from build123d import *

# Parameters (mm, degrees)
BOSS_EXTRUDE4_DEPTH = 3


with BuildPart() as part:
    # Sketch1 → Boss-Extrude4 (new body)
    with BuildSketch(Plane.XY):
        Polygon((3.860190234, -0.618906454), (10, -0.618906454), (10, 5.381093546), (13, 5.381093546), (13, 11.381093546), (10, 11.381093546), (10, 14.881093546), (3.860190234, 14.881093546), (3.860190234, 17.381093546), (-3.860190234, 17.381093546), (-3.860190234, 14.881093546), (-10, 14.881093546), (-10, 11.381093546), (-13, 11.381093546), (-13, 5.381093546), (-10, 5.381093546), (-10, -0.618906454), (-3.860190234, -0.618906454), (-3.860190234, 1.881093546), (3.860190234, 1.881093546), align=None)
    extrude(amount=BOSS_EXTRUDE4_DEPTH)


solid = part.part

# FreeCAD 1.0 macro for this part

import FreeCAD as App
import Part
import Sketcher

V = App.Vector


def add_polygon(sketch, points):
    """Adds a closed chain of lines whose ends are joined by coincident constraints."""
    first, n = sketch.GeometryCount, len(points)
    for a, b in zip(points, points[1:] + points[:1]):
        sketch.addGeometry(Part.LineSegment(App.Vector(*a, 0), App.Vector(*b, 0)), False)
    for i in range(n):
        sketch.addConstraint(Sketcher.Constraint("Coincident", first + i, 2, first + (i + 1) % n, 1))

doc = App.newDocument("Part")
body = doc.addObject("PartDesign::Body", "Body")

# Sketch on XY plane
sketch1 = body.newObject("Sketcher::SketchObject", "Sketch")
sketch1.AttachmentSupport = (doc.getObject("XY_Plane"), [""])
sketch1.MapMode = "FlatFace"
add_polygon(sketch1, [(3.9, -0.6), (10, -0.6), (10, 5.4), (13, 5.4), (13, 11.4), (10, 11.4), (10, 14.9), (3.9, 14.9), (3.9, 17.4), (-3.9, 17.4), (-3.9, 14.9), (-10, 14.9), (-10, 11.4), (-13, 11.4), (-13, 5.4), (-10, 5.4), (-10, -0.6), (-3.9, -0.6), (-3.9, 1.9), (3.9, 1.9)])  # lines 0-19
sketch1.addConstraint([
    Sketcher.Constraint("Horizontal", 0),
    Sketcher.Constraint("Vertical", 1),
    Sketcher.Constraint("Horizontal", 2),
    Sketcher.Constraint("Vertical", 3),
    Sketcher.Constraint("Horizontal", 4),
    Sketcher.Constraint("Vertical", 5),
    Sketcher.Constraint("Horizontal", 6),
    Sketcher.Constraint("Vertical", 7),
    Sketcher.Constraint("Horizontal", 8),
    Sketcher.Constraint("Vertical", 9),
    Sketcher.Constraint("Horizontal", 10),
    Sketcher.Constraint("Vertical", 11),
    Sketcher.Constraint("Horizontal", 12),
    Sketcher.Constraint("Vertical", 13),
    Sketcher.Constraint("Horizontal", 14),
    Sketcher.Constraint("Vertical", 15),
    Sketcher.Constraint("Horizontal", 16),
    Sketcher.Constraint("Vertical", 17),
    Sketcher.Constraint("Horizontal", 18),
    Sketcher.Constraint("Vertical", 19),
    Sketcher.Constraint("Symmetric", 6, 2, 9, 2, -2),
    Sketcher.Constraint("Symmetric", 4, 2, 11, 2, -2),
    Sketcher.Constraint("Symmetric", 2, 2, 13, 2, -2),
    Sketcher.Constraint("Symmetric", 0, 2, 15, 2, -2),
    Sketcher.Constraint("Vertical", 1, 2, 4, 2),
    Sketcher.Constraint("Vertical", 9, 2, 16, 2),
    Sketcher.Constraint("Vertical", 7, 2, 18, 2),
    Sketcher.Constraint("Equal", 1, 3),
    Sketcher.Constraint("Equal", 9, 17),
    Sketcher.Constraint("DistanceX", 2, 1, 2, 2, 3.0),
    Sketcher.Constraint("DistanceY", 1, 1, 1, 2, 6.0),
    Sketcher.Constraint("DistanceY", 5, 1, 5, 2, 3.5),
    Sketcher.Constraint("DistanceY", 7, 1, 7, 2, 2.5),
    Sketcher.Constraint("DistanceX", -1, 1, 0, 2, 10.0),
    Sketcher.Constraint("DistanceX", 0, 1, 0, 2, 6.13981),
    Sketcher.Constraint("DistanceY", 0, 2, -1, 1, 0.618906),
])
pad1 = body.newObject("PartDesign::Pad", "Pad")
pad1.Profile = sketch1
pad1.Length = 3

doc.recompute()
